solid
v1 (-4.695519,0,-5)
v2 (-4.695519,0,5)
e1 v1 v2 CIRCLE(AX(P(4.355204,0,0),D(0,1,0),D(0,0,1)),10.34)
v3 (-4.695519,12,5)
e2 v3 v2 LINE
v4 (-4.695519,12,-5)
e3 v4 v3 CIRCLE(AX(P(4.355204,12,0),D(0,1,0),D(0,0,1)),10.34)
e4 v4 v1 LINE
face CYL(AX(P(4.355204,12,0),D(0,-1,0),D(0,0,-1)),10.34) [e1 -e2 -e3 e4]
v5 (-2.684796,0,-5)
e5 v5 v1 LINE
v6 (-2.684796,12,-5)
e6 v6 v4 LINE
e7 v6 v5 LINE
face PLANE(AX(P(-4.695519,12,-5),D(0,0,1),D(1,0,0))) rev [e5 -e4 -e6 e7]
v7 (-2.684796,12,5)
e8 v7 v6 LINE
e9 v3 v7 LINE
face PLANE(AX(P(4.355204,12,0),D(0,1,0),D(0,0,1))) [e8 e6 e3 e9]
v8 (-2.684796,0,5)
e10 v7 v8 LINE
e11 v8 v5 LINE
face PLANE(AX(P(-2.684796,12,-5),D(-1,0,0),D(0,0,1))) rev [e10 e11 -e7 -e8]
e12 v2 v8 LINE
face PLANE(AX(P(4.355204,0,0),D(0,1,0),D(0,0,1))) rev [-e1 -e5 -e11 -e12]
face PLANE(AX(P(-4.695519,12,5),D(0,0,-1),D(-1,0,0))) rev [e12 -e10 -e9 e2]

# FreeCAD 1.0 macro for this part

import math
import FreeCAD as App
import Part
import Sketcher
Q = App.Units.Quantity

doc = App.newDocument("Part")
body = doc.addObject("PartDesign::Body", "Body")

# Sketch on XZ plane
sketch1 = doc.addObject("Sketcher::SketchObject", "Sketch")
body.addObject(sketch1)
sketch1.AttachmentSupport = (doc.XZ_Plane, [""])
sketch1.MapMode = "FlatFace"
sketch1.addGeometry([
    Part.LineSegment(App.Vector(-2.7, -5, 0), App.Vector(-4.7, -5, 0)),
    Part.ArcOfCircle(Part.Circle(App.Vector(4.4, 0, 0), App.Vector(0, 0, 1), 10.3), math.radians(151), math.radians(209)),
    Part.LineSegment(App.Vector(-4.7, 5, 0), App.Vector(-2.7, 5, 0)),
    Part.LineSegment(App.Vector(-2.7, 5, 0), App.Vector(-2.7, -5, 0)),
], False)
sketch1.addConstraint([
    Sketcher.Constraint("Coincident", 0, 2, 1, 2),
    Sketcher.Constraint("Coincident", 1, 1, 2, 1),
    Sketcher.Constraint("Coincident", 2, 2, 3, 1),
    Sketcher.Constraint("Coincident", 3, 2, 0, 1),
    Sketcher.Constraint("Horizontal", 0),
    Sketcher.Constraint("Horizontal", 2),
    Sketcher.Constraint("Vertical", 3),
    Sketcher.Constraint("Symmetric", 0, 2, 1, 1, -1),
    Sketcher.Constraint("DistanceY", 3, 2, 3, 1, Q("10 mm")),
    Sketcher.Constraint("Radius", 1, Q("10.34 mm")),
    Sketcher.Constraint("DistanceX", 2, 2, 1, 3, Q("7.04 mm")),
    Sketcher.Constraint("DistanceX", 0, 2, -1, 1, Q("4.695519 mm")),
])
pad1 = doc.addObject("PartDesign::Pad", "Pad")
body.addObject(pad1)
pad1.Profile = sketch1
pad1.Length = 12
pad1.Reversed = True

doc.recompute()
